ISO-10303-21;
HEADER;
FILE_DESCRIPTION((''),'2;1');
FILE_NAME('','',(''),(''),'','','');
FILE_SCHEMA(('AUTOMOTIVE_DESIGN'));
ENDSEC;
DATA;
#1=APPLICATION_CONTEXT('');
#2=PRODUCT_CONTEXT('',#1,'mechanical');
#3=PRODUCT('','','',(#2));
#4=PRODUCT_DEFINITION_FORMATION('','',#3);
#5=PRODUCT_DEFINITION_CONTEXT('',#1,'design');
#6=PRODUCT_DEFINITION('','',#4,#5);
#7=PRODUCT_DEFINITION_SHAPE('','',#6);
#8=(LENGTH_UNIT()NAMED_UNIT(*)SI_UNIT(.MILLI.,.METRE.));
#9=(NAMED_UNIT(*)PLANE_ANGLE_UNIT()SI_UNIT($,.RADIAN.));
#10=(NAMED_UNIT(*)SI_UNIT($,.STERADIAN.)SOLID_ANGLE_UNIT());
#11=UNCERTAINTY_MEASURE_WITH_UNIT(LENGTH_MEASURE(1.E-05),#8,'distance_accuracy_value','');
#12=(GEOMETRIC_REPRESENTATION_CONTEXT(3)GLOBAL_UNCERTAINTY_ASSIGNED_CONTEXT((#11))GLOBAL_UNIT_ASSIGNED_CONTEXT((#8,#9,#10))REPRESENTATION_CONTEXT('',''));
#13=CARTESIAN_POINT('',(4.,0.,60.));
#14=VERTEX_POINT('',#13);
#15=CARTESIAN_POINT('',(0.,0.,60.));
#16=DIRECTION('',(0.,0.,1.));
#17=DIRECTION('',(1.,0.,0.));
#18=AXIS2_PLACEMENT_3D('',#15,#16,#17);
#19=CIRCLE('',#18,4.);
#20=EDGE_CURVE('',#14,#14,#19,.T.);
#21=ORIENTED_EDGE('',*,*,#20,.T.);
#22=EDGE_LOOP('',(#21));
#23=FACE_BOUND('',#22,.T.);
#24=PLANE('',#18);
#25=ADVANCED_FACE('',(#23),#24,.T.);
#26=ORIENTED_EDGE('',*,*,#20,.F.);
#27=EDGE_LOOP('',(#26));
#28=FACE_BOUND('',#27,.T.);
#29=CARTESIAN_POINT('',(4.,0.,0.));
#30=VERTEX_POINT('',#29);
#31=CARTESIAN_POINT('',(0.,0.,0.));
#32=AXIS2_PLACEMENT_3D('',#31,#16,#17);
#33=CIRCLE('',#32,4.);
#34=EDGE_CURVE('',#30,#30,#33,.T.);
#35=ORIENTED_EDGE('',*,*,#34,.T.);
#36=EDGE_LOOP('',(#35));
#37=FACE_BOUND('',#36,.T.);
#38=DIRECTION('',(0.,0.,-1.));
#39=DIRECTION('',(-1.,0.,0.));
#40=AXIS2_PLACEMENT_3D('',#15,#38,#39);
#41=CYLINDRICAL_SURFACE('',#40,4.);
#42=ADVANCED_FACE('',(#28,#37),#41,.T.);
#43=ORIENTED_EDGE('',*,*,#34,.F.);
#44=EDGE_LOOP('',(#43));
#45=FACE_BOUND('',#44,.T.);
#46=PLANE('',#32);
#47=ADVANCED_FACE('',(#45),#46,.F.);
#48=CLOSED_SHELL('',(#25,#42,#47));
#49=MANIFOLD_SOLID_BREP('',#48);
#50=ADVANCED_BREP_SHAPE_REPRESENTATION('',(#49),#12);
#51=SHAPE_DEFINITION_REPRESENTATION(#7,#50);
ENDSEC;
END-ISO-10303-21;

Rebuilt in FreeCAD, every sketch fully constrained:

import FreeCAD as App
import Part
import Sketcher
Q = App.Units.Quantity

doc = App.newDocument("Part")
body = doc.addObject("PartDesign::Body", "Body")

sketch1 = doc.addObject("Sketcher::SketchObject", "Sketch")
body.addObject(sketch1)
sketch1.AttachmentSupport = (doc.XY_Plane, [""])
sketch1.MapMode = "FlatFace"
sketch1.addGeometry(Part.Circle(App.Vector(0, 0, 0), App.Vector(0, 0, 1), 4), False)
sketch1.addConstraint([
    Sketcher.Constraint("Coincident", 0, 3, -1, 1),
    Sketcher.Constraint("Diameter", 0, Q("8 mm")),
])
pad1 = doc.addObject("PartDesign::Pad", "Pad")
body.addObject(pad1)
pad1.Profile = sketch1
pad1.Length = 60

doc.recompute()
